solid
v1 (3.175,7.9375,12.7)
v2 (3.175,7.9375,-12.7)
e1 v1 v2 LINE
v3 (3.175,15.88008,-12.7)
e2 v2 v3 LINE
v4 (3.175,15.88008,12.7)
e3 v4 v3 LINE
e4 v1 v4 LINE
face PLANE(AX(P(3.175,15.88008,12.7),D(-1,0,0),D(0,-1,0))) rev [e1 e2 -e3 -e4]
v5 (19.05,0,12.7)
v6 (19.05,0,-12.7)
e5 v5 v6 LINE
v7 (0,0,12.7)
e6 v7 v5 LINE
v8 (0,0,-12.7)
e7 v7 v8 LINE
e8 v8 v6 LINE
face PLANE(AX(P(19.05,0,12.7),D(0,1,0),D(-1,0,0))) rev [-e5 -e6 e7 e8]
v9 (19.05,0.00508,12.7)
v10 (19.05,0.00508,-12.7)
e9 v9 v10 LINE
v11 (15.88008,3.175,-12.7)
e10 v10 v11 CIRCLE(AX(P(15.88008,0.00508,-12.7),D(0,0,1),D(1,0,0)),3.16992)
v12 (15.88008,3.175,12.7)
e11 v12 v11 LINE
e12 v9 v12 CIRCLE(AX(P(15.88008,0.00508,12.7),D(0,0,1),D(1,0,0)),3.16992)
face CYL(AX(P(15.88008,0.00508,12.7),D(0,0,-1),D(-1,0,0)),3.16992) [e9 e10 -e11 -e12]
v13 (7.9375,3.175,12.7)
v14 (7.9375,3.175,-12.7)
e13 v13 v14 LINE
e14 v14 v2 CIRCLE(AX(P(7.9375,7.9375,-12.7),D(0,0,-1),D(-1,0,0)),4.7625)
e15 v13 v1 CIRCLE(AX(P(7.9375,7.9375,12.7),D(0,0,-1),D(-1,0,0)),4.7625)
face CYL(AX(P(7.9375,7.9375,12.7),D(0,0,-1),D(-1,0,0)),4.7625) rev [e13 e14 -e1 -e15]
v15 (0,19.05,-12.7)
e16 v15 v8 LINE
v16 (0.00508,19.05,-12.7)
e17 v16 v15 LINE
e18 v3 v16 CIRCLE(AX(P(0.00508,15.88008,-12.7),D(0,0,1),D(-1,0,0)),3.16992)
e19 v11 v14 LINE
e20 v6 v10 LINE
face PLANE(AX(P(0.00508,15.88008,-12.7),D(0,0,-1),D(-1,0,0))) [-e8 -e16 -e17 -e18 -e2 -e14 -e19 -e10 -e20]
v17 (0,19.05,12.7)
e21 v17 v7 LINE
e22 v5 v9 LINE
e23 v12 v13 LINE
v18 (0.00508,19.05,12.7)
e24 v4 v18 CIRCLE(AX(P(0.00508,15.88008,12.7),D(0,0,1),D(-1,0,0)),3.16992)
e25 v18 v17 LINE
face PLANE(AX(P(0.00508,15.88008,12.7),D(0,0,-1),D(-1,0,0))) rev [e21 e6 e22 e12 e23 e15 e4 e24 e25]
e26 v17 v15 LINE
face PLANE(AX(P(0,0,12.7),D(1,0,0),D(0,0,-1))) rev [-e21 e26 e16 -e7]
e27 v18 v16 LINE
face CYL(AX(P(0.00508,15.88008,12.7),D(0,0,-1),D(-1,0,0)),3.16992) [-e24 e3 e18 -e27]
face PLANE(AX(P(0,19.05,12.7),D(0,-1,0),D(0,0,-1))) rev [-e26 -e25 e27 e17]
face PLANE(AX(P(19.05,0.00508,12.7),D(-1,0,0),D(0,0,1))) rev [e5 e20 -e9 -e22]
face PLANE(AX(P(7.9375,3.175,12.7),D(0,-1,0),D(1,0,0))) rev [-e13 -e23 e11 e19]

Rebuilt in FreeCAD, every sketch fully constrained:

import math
import FreeCAD as App
import Part
import Sketcher

V = App.Vector
Q = App.Units.Quantity

doc = App.newDocument("Part")
body = doc.addObject("PartDesign::Body", "Body")

# Sketch on XY plane
sketch1 = body.newObject("Sketcher::SketchObject", "Sketch")
sketch1.AttachmentSupport = (doc.getObject("XY_Plane"), [""])
sketch1.MapMode = "FlatFace"
sketch1.addGeometry([
    Part.LineSegment(V(0, 19.05, 0), V(0, 0, 0)),  # 0
    Part.LineSegment(V(0, 0, 0), V(19.05, 0, 0)),  # 1
    Part.LineSegment(V(19.05, 0, 0), V(19.05, 0.00508, 0)),  # 2
    Part.ArcOfCircle(Part.Circle(V(15.88008, 0.00508, 0), V(0, 0, 1), 3.16992), math.radians(0), math.radians(90)),  # 3
    Part.LineSegment(V(15.88008, 3.175, 0), V(7.9375, 3.175, 0)),  # 4
    Part.ArcOfCircle(Part.Circle(V(7.9375, 7.9375, 0), V(0, 0, 1), 4.7625), math.radians(-180), math.radians(-90)),  # 5
    Part.LineSegment(V(3.175, 7.9375, 0), V(3.175, 15.88008, 0)),  # 6
    Part.ArcOfCircle(Part.Circle(V(0.00508, 15.88008, 0), V(0, 0, 1), 3.16992), math.radians(0), math.radians(90)),  # 7
    Part.LineSegment(V(0.00508, 19.05, 0), V(0, 19.05, 0)),  # 8
], False)
sketch1.addConstraint([
    Sketcher.Constraint("Coincident", 0, 2, 1, 1),
    Sketcher.Constraint("Coincident", 1, 2, 2, 1),
    Sketcher.Constraint("Tangent", 2, 2, 3, 1),
    Sketcher.Constraint("Tangent", 3, 2, 4, 1),
    Sketcher.Constraint("Tangent", 4, 2, 5, 2),
    Sketcher.Constraint("Tangent", 5, 1, 6, 1),
    Sketcher.Constraint("Tangent", 6, 2, 7, 1),
    Sketcher.Constraint("Tangent", 7, 2, 8, 1),
    Sketcher.Constraint("Coincident", 8, 2, 0, 1),
    Sketcher.Constraint("Vertical", 0),
    Sketcher.Constraint("Horizontal", 1),
    Sketcher.Constraint("Horizontal", 4),
    Sketcher.Constraint("Vertical", 6),
    Sketcher.Constraint("Coincident", 0, 2, -1, 1),
    Sketcher.Constraint("Equal", 3, 7),
    Sketcher.Constraint("Horizontal", 3, 3, 2, 2),
    Sketcher.Constraint("Equal", 1, 0),
    Sketcher.Constraint("Equal", 8, 2),
    Sketcher.Constraint("Equal", 4, 6),
    Sketcher.Constraint("Radius", 5, Q("0.1875 in")),
    Sketcher.Constraint("DistanceX", 1, 1, 1, 2, Q("0.75 in")),
    Sketcher.Constraint("Radius", 3, Q("0.1248 in")),
    Sketcher.Constraint("DistanceX", 4, 2, 4, 1, Q("0.3127 in")),
])
pad1 = body.newObject("PartDesign::Pad", "Pad")
pad1.Profile = sketch1
pad1.Length = Q("1 in")
pad1.Midplane = True

doc.recompute()
